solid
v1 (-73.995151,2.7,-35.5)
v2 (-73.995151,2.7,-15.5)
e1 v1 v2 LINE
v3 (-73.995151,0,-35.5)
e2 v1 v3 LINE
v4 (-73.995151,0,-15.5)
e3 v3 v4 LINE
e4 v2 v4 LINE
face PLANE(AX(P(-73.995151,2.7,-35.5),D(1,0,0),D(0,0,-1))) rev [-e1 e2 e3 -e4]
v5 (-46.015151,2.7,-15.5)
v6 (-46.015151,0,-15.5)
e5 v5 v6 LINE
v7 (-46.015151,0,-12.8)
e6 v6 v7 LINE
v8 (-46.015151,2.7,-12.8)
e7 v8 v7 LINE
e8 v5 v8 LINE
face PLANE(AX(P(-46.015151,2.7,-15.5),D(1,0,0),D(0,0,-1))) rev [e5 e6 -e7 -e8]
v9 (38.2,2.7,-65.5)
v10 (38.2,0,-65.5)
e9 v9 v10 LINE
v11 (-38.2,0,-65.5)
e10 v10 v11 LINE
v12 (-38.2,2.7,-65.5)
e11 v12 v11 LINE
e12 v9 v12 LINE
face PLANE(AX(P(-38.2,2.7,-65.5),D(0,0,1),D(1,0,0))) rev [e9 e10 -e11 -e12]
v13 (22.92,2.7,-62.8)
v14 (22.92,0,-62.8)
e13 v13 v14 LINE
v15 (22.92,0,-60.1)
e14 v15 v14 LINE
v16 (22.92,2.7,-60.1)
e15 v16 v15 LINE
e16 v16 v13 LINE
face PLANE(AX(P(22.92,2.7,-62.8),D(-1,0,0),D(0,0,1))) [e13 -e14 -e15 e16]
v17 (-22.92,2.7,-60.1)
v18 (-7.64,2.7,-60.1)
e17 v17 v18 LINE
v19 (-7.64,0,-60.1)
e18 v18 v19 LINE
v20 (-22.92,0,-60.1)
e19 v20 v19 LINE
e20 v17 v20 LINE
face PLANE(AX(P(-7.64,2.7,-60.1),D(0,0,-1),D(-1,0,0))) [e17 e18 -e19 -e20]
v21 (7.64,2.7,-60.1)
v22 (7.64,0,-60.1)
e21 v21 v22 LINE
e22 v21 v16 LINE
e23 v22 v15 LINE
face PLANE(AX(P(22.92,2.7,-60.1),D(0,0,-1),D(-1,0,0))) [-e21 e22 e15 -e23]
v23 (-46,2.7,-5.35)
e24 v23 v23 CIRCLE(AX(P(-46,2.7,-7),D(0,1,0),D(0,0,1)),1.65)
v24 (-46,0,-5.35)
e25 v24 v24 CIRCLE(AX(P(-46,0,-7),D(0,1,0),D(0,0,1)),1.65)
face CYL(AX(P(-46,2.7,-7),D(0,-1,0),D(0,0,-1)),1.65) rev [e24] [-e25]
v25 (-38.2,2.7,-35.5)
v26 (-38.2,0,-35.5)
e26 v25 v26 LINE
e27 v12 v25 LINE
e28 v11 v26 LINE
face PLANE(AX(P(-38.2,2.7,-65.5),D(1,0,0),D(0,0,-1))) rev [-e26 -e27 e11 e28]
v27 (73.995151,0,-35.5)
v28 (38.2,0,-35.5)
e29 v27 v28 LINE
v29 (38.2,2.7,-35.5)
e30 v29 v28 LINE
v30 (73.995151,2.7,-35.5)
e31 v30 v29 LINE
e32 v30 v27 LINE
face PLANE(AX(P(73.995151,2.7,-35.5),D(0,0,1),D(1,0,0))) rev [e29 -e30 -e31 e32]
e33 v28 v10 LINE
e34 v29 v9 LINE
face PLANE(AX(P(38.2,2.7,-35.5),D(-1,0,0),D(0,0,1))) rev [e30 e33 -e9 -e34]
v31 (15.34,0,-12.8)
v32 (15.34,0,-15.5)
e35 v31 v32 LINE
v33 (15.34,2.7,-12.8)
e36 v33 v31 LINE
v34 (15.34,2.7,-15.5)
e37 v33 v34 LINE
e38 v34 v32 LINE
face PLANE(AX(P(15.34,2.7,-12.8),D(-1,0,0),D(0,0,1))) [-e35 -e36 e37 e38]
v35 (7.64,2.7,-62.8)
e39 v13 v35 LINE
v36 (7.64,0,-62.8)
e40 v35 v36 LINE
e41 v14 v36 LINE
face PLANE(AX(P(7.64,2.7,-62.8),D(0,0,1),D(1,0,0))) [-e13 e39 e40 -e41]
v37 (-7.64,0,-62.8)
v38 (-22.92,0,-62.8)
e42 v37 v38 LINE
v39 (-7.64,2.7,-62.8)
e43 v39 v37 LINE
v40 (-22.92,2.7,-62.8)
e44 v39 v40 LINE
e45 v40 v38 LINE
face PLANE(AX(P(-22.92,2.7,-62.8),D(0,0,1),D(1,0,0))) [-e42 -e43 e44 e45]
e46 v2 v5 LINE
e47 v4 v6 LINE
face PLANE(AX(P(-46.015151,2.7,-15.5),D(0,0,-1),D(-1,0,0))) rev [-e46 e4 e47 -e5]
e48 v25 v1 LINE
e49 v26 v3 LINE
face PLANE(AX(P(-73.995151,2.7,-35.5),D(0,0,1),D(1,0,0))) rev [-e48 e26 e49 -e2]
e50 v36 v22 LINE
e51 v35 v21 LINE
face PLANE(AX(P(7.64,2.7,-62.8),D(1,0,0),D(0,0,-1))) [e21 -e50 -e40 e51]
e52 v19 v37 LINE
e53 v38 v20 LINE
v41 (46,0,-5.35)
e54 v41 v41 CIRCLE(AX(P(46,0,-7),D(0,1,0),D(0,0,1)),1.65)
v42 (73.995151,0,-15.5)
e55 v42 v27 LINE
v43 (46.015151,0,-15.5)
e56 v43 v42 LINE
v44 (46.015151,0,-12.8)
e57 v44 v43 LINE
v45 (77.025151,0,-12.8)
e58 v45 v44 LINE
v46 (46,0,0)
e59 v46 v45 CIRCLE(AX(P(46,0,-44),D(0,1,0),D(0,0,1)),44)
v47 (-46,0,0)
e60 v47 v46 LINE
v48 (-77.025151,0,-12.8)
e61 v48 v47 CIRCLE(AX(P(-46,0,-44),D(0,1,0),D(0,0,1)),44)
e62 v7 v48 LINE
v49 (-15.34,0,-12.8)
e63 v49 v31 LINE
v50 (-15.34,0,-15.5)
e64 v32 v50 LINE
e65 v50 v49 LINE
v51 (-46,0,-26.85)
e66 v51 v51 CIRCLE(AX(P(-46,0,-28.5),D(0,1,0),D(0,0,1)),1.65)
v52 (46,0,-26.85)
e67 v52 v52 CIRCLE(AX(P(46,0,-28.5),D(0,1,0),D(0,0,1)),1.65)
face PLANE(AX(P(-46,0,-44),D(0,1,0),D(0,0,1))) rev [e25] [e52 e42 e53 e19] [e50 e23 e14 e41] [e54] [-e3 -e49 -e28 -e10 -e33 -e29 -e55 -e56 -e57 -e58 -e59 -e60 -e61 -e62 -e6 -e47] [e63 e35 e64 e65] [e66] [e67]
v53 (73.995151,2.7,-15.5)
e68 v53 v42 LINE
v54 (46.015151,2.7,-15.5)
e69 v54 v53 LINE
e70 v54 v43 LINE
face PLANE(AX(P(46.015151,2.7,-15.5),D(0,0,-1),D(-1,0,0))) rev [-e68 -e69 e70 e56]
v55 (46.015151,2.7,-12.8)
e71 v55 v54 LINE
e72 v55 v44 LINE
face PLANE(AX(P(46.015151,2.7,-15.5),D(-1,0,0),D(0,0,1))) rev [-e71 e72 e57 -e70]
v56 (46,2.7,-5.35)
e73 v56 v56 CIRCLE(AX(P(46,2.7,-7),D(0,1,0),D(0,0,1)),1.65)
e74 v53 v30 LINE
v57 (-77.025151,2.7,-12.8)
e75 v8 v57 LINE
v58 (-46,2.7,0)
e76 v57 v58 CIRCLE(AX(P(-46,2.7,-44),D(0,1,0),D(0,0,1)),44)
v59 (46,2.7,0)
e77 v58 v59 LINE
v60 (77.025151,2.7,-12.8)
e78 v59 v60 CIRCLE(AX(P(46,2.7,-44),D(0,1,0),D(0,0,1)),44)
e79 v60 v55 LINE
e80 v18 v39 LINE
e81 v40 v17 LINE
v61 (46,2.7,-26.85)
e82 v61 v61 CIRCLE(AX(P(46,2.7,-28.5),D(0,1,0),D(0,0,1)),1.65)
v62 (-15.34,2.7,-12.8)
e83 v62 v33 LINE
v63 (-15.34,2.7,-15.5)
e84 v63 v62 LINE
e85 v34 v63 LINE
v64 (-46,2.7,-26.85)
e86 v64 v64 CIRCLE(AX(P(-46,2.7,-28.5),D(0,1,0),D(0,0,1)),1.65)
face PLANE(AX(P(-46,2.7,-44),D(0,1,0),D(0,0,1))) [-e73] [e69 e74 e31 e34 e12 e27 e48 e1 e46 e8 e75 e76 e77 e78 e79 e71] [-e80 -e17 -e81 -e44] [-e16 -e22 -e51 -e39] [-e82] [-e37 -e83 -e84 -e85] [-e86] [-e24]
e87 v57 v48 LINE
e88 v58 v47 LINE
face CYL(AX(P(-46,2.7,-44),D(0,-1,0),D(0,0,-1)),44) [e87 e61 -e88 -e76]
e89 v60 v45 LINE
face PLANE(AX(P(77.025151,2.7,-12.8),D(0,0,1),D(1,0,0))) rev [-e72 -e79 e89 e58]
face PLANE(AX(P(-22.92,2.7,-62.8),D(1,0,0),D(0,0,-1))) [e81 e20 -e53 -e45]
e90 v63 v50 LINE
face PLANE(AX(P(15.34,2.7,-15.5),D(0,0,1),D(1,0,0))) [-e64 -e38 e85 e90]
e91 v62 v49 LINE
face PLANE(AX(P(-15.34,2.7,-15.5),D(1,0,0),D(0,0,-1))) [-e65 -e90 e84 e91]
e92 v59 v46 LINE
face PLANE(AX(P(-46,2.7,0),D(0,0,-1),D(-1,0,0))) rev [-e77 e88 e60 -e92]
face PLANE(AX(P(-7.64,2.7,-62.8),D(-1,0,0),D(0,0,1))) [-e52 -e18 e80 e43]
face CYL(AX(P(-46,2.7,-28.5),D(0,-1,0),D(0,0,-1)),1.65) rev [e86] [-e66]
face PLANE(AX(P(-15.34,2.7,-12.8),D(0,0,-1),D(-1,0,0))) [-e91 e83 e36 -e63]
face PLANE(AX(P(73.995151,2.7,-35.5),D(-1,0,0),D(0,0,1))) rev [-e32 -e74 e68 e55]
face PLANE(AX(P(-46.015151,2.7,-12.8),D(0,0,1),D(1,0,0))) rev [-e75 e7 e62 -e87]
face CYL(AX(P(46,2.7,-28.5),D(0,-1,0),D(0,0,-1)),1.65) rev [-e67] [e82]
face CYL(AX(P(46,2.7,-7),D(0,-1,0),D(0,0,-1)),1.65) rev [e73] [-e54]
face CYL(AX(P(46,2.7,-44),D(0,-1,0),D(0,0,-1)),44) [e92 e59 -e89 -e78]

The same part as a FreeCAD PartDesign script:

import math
import FreeCAD as App
import Part
import Sketcher

V = App.Vector
Q = App.Units.Quantity


def add_polygon(sketch, points):
    """Adds a closed chain of lines whose ends are joined by coincident constraints."""
    first, n = sketch.GeometryCount, len(points)
    for a, b in zip(points, points[1:] + points[:1]):
        sketch.addGeometry(Part.LineSegment(App.Vector(*a, 0), App.Vector(*b, 0)), False)
    for i in range(n):
        sketch.addConstraint(Sketcher.Constraint("Coincident", first + i, 2, first + (i + 1) % n, 1))

doc = App.newDocument("Part")
body = doc.addObject("PartDesign::Body", "Body")

# Sketch on XZ plane
sketch1 = body.newObject("Sketcher::SketchObject", "Sketch")
sketch1.AttachmentSupport = (doc.getObject("XZ_Plane"), [""])
sketch1.MapMode = "FlatFace"
sketch1.addGeometry(Part.LineSegment(V(-46, 0, 0), V(46, 0, 0)), False)  # 0
sketch1.addGeometry(Part.ArcOfCircle(Part.Circle(V(46, -44, 0), V(0, 0, 1), 44), math.radians(45), math.radians(90)), False)  # 1
sketch1.addGeometry(Part.LineSegment(V(77, -12.8, 0), V(46, -12.8, 0)), False)  # 2
sketch1.addGeometry(Part.LineSegment(V(46, -12.8, 0), V(46, -15.5, 0)), False)  # 3
sketch1.addGeometry(Part.LineSegment(V(46, -15.5, 0), V(74, -15.5, 0)), False)  # 4
sketch1.addGeometry(Part.LineSegment(V(74, -15.5, 0), V(74, -35.5, 0)), False)  # 5
sketch1.addGeometry(Part.LineSegment(V(74, -35.5, 0), V(38.2, -35.5, 0)), False)  # 6
sketch1.addGeometry(Part.LineSegment(V(38.2, -35.5, 0), V(38.2, -65.5, 0)), False)  # 7
sketch1.addGeometry(Part.LineSegment(V(38.2, -65.5, 0), V(-38.2, -65.5, 0)), False)  # 8
sketch1.addGeometry(Part.LineSegment(V(-38.2, -65.5, 0), V(-38.2, -35.5, 0)), False)  # 9
sketch1.addGeometry(Part.LineSegment(V(-38.2, -35.5, 0), V(-74, -35.5, 0)), False)  # 10
sketch1.addGeometry(Part.LineSegment(V(-74, -35.5, 0), V(-74, -15.5, 0)), False)  # 11
sketch1.addGeometry(Part.LineSegment(V(-74, -15.5, 0), V(-46, -15.5, 0)), False)  # 12
sketch1.addGeometry(Part.LineSegment(V(-46, -15.5, 0), V(-46, -12.8, 0)), False)  # 13
sketch1.addGeometry(Part.LineSegment(V(-46, -12.8, 0), V(-77, -12.8, 0)), False)  # 14
sketch1.addGeometry(Part.ArcOfCircle(Part.Circle(V(-46, -44, 0), V(0, 0, 1), 44), math.radians(90), math.radians(135)), False)  # 15
sketch1.addGeometry(Part.Circle(V(-46, -7, 0), V(0, 0, 1), 1.6), False)  # 16
sketch1.addGeometry(Part.Circle(V(-46, -28.5, 0), V(0, 0, 1), 1.6), False)  # 17
add_polygon(sketch1, [(15.3, -12.8), (-15.3, -12.8), (-15.3, -15.5), (15.3, -15.5)])  # lines 18-21
sketch1.addGeometry(Part.Circle(V(46, -7, 0), V(0, 0, 1), 1.6), False)  # 22
sketch1.addGeometry(Part.Circle(V(46, -28.5, 0), V(0, 0, 1), 1.6), False)  # 23
add_polygon(sketch1, [(-7.6, -60.1), (-22.9, -60.1), (-22.9, -62.8), (-7.6, -62.8)])  # lines 24-27
add_polygon(sketch1, [(22.9, -60.1), (7.6, -60.1), (7.6, -62.8), (22.9, -62.8)])  # lines 28-31
sketch1.addConstraint(Sketcher.Constraint("Tangent", 0, 2, 1, 2))
sketch1.addConstraint(Sketcher.Constraint("Coincident", 1, 1, 2, 1))
sketch1.addConstraint(Sketcher.Constraint("Coincident", 2, 2, 3, 1))
sketch1.addConstraint(Sketcher.Constraint("Coincident", 3, 2, 4, 1))
sketch1.addConstraint(Sketcher.Constraint("Coincident", 4, 2, 5, 1))
sketch1.addConstraint(Sketcher.Constraint("Coincident", 5, 2, 6, 1))
sketch1.addConstraint(Sketcher.Constraint("Coincident", 6, 2, 7, 1))
sketch1.addConstraint(Sketcher.Constraint("Coincident", 7, 2, 8, 1))
sketch1.addConstraint(Sketcher.Constraint("Coincident", 8, 2, 9, 1))
sketch1.addConstraint(Sketcher.Constraint("Coincident", 9, 2, 10, 1))
sketch1.addConstraint(Sketcher.Constraint("Coincident", 10, 2, 11, 1))
sketch1.addConstraint(Sketcher.Constraint("Coincident", 11, 2, 12, 1))
sketch1.addConstraint(Sketcher.Constraint("Coincident", 12, 2, 13, 1))
sketch1.addConstraint(Sketcher.Constraint("Coincident", 13, 2, 14, 1))
sketch1.addConstraint(Sketcher.Constraint("Coincident", 14, 2, 15, 2))
sketch1.addConstraint(Sketcher.Constraint("Tangent", 15, 1, 0, 1))
sketch1.addConstraint(Sketcher.Constraint("Horizontal", 0))
sketch1.addConstraint(Sketcher.Constraint("Horizontal", 2))
sketch1.addConstraint(Sketcher.Constraint("Vertical", 3))
sketch1.addConstraint(Sketcher.Constraint("Horizontal", 4))
sketch1.addConstraint(Sketcher.Constraint("Vertical", 5))
sketch1.addConstraint(Sketcher.Constraint("Horizontal", 6))
sketch1.addConstraint(Sketcher.Constraint("Vertical", 7))
sketch1.addConstraint(Sketcher.Constraint("Horizontal", 8))
sketch1.addConstraint(Sketcher.Constraint("Vertical", 9))
sketch1.addConstraint(Sketcher.Constraint("Horizontal", 10))
sketch1.addConstraint(Sketcher.Constraint("Vertical", 11))
sketch1.addConstraint(Sketcher.Constraint("Horizontal", 12))
sketch1.addConstraint(Sketcher.Constraint("Vertical", 13))
sketch1.addConstraint(Sketcher.Constraint("Horizontal", 14))
sketch1.addConstraint(Sketcher.Constraint("Horizontal", 18))
sketch1.addConstraint(Sketcher.Constraint("Vertical", 19))
sketch1.addConstraint(Sketcher.Constraint("Horizontal", 20))
sketch1.addConstraint(Sketcher.Constraint("Vertical", 21))
sketch1.addConstraint(Sketcher.Constraint("Horizontal", 24))
sketch1.addConstraint(Sketcher.Constraint("Vertical", 25))
sketch1.addConstraint(Sketcher.Constraint("Horizontal", 26))
sketch1.addConstraint(Sketcher.Constraint("Vertical", 27))
sketch1.addConstraint(Sketcher.Constraint("Horizontal", 28))
sketch1.addConstraint(Sketcher.Constraint("Vertical", 29))
sketch1.addConstraint(Sketcher.Constraint("Horizontal", 30))
sketch1.addConstraint(Sketcher.Constraint("Vertical", 31))
sketch1.addConstraint(Sketcher.Constraint("Equal", 1, 15))
sketch1.addConstraint(Sketcher.Constraint("Equal", 16, 17))
sketch1.addConstraint(Sketcher.Constraint("Equal", 17, 22))
sketch1.addConstraint(Sketcher.Constraint("Equal", 22, 23))
sketch1.addConstraint(Sketcher.Constraint("Symmetric", 0, 2, 15, 1, -1, 1))
sketch1.addConstraint(Sketcher.Constraint("Symmetric", 16, 3, 22, 3, -2))
sketch1.addConstraint(Sketcher.Constraint("Symmetric", 17, 3, 23, 3, -2))
sketch1.addConstraint(Sketcher.Constraint("Symmetric", 6, 2, 9, 2, -2))
sketch1.addConstraint(Sketcher.Constraint("Symmetric", 4, 2, 11, 2, -2))
sketch1.addConstraint(Sketcher.Constraint("Symmetric", 2, 2, 13, 2, -2))
sketch1.addConstraint(Sketcher.Constraint("Symmetric", 27, 2, 28, 2, -2))
sketch1.addConstraint(Sketcher.Constraint("Symmetric", 25, 2, 30, 2, -2))
sketch1.addConstraint(Sketcher.Constraint("Horizontal", 14, 2, 18, 2))
sketch1.addConstraint(Sketcher.Constraint("Horizontal", 12, 2, 19, 2))
sketch1.addConstraint(Sketcher.Constraint("Vertical", 15, 3, 16, 3))
sketch1.addConstraint(Sketcher.Constraint("Vertical", 16, 3, 17, 3))
sketch1.addConstraint(Sketcher.Constraint("Equal", 21, 25))
sketch1.addConstraint(Sketcher.Constraint("Radius", 1, Q("44 mm")))
sketch1.addConstraint(Sketcher.Constraint("Diameter", 16, Q("3.3 mm")))
sketch1.addConstraint(Sketcher.Constraint("DistanceX", 0, 1, 0, 2, Q("92 mm")))
sketch1.addConstraint(Sketcher.Constraint("DistanceY", 5, 2, 5, 1, Q("20 mm")))
sketch1.addConstraint(Sketcher.Constraint("DistanceY", 7, 2, 7, 1, Q("30 mm")))
sketch1.addConstraint(Sketcher.Constraint("DistanceX", 8, 2, 8, 1, Q("76.4 mm")))
sketch1.addConstraint(Sketcher.Constraint("DistanceY", 3, 2, 3, 1, Q("2.7 mm")))
sketch1.addConstraint(Sketcher.Constraint("DistanceY", 16, 3, -1, 1, Q("7 mm")))
sketch1.addConstraint(Sketcher.Constraint("DistanceY", 23, 3, 3, 2, Q("13 mm")))
sketch1.addConstraint(Sketcher.Constraint("DistanceX", 2, 2, 2, 1, Q("31.01 mm")))
sketch1.addConstraint(Sketcher.Constraint("DistanceX", 4, 1, 4, 2, Q("27.98 mm")))
sketch1.addConstraint(Sketcher.Constraint("DistanceX", 18, 2, 18, 1, Q("30.68 mm")))
sketch1.addConstraint(Sketcher.Constraint("DistanceX", 24, 2, 24, 1, Q("15.28 mm")))
sketch1.addConstraint(Sketcher.Constraint("DistanceY", 17, 3, -1, 1, Q("28.5 mm")))
sketch1.addConstraint(Sketcher.Constraint("DistanceY", 24, 2, -1, 1, Q("60.1 mm")))
sketch1.addConstraint(Sketcher.Constraint("DistanceX", 18, 2, -1, 1, Q("15.34 mm")))
sketch1.addConstraint(Sketcher.Constraint("DistanceX", 24, 2, -1, 1, Q("22.92 mm")))
pad1 = body.newObject("PartDesign::Pad", "Pad")
pad1.Profile = sketch1
pad1.Length = 2.7
pad1.Reversed = True

doc.recompute()
